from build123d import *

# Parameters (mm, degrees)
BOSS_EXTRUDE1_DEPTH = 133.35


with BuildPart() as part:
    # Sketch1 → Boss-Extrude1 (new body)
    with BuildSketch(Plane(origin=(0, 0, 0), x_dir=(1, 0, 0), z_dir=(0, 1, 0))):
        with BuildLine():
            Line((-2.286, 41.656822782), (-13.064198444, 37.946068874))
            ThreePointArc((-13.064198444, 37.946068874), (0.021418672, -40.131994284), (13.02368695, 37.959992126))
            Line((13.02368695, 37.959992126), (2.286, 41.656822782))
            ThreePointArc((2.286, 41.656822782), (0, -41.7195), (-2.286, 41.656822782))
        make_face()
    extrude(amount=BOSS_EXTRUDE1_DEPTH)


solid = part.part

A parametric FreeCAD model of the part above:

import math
import FreeCAD as App
import Part
import Sketcher

V = App.Vector
Q = App.Units.Quantity

doc = App.newDocument("Part")
body = doc.addObject("PartDesign::Body", "Body")

sketch1 = body.newObject("Sketcher::SketchObject", "Sketch")
sketch1.AttachmentSupport = (doc.getObject("XZ_Plane"), [""])
sketch1.MapMode = "FlatFace"
sketch1.addGeometry([
    Part.LineSegment(V(-13.1, -37.9, 0), V(-2.3, -41.7, 0)),
    Part.ArcOfCircle(Part.Circle(V(0, 0, 0), V(0, 0, 1), 41.7), math.radians(-87), math.radians(267)),
    Part.LineSegment(V(2.3, -41.7, 0), V(13, -38, 0)),
    Part.ArcOfCircle(Part.Circle(V(0, 0, 0), V(0, 0, 1), 40.1), math.radians(-71), math.radians(251)),
], False)
sketch1.addConstraint([
    Sketcher.Constraint("Coincident", 0, 2, 1, 2),
    Sketcher.Constraint("Coincident", 1, 1, 2, 1),
    Sketcher.Constraint("Coincident", 2, 2, 3, 1),
    Sketcher.Constraint("Tangent", 3, 2, 0, 1),
    Sketcher.Constraint("Coincident", 1, 3, -1, 1),
    Sketcher.Constraint("Coincident", 3, 3, -1, 1),
    Sketcher.Constraint("Horizontal", 0, 2, 1, 1),
    Sketcher.Constraint("Radius", 3, Q("1.58 in")),
    Sketcher.Constraint("Radius", 1, Q("1.6425 in")),
    Sketcher.Constraint("DistanceX", 0, 2, -1, 1, Q("0.09 in")),
    Sketcher.Constraint("DistanceY", 1, 1, 2, 2, Q("3.696831 mm")),
])
pad1 = body.newObject("PartDesign::Pad", "Pad")
pad1.Profile = sketch1
pad1.Length = Q("5.25 in")
pad1.Reversed = True

doc.recompute()
